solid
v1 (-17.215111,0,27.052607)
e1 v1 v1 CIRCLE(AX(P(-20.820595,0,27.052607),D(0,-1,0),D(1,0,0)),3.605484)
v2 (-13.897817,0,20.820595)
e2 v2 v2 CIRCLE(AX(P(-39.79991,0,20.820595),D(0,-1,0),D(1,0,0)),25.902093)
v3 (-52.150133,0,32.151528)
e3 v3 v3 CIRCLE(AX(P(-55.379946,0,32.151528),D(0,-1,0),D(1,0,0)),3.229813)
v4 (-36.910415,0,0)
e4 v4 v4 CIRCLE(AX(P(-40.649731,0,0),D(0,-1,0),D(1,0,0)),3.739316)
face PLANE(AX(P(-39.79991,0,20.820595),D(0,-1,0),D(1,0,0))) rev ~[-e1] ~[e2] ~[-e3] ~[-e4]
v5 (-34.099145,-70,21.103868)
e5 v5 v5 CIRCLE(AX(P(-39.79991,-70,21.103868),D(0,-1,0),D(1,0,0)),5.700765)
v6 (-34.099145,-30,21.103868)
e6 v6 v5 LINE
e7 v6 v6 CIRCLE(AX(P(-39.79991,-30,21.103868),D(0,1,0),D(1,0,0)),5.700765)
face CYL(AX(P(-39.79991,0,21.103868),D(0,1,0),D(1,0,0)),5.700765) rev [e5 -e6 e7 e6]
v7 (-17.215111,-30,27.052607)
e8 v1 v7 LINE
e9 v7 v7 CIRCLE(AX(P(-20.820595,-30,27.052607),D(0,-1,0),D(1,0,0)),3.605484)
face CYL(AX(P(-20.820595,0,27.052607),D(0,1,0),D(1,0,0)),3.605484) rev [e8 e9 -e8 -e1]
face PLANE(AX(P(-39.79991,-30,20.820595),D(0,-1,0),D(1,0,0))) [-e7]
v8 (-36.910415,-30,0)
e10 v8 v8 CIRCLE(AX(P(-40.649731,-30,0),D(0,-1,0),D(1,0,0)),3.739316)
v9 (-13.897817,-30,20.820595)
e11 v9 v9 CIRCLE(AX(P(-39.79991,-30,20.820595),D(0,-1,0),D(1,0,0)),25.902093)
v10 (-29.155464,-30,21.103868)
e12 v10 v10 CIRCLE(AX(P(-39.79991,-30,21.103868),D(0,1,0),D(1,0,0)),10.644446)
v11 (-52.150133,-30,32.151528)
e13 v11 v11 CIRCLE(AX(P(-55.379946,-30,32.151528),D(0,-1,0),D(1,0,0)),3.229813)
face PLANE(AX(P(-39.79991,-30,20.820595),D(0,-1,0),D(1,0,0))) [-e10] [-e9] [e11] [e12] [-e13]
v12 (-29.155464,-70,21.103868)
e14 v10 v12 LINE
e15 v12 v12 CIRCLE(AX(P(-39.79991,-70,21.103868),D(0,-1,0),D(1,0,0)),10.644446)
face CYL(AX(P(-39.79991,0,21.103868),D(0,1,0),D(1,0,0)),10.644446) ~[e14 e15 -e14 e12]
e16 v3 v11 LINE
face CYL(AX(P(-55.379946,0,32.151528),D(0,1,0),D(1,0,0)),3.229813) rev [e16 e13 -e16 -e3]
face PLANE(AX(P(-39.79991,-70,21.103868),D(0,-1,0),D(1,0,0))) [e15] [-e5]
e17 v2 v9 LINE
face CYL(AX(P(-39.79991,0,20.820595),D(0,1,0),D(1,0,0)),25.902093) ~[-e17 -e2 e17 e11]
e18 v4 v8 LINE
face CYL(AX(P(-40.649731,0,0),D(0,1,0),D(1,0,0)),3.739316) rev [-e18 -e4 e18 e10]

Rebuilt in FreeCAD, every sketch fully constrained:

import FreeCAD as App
import Part
import Sketcher
from FreeCAD import Vector
Q = App.Units.Quantity

doc = App.newDocument("Part")
body = doc.addObject("PartDesign::Body", "Body")

# Sketch on XZ plane
sketch1 = body.newObject("Sketcher::SketchObject", "Sketch")
sketch1.AttachmentSupport = (doc.getObject("XZ_Plane"), [""])
sketch1.MapMode = "FlatFace"
sketch1.addGeometry([
    Part.Circle(Vector(-40, 21, 0), Vector(0, 0, 1), 11),
    Part.Circle(Vector(-40, 21, 0), Vector(0, 0, 1), 6),
], False)
sketch1.addConstraint([
    Sketcher.Constraint("Coincident", 1, 3, 0, 3),
    Sketcher.Constraint("Diameter", 1, Q("11.40153 mm")),
    Sketcher.Constraint("Diameter", 0, Q("21.288892 mm")),
    Sketcher.Constraint("DistanceX", 0, 3, -1, 1, Q("39.79991 mm")),
    Sketcher.Constraint("DistanceY", -1, 1, 0, 3, Q("21.103868 mm")),
])
pad1 = body.newObject("PartDesign::Pad", "Pad")
pad1.Profile = sketch1
pad1.Length = 70

# Sketch on XZ plane
sketch2 = body.newObject("Sketcher::SketchObject", "Sketch001")
sketch2.AttachmentSupport = (doc.getObject("XZ_Plane"), [""])
sketch2.MapMode = "FlatFace"
sketch2.addGeometry([
    Part.Circle(Vector(-39.8, 20.8, 0), Vector(0, 0, 1), 25.9),
    Part.Circle(Vector(-40.6, 0, 0), Vector(0, 0, 1), 3.7),
    Part.Circle(Vector(-55.4, 32.2, 0), Vector(0, 0, 1), 3.2),
    Part.Circle(Vector(-20.8, 27.1, 0), Vector(0, 0, 1), 3.6),
], False)
sketch2.addConstraint([
    Sketcher.Constraint("PointOnObject", 1, 3, -1),
    Sketcher.Constraint("Diameter", 3, Q("7.210968 mm")),
    Sketcher.Constraint("Diameter", 0, Q("51.804186 mm")),
    Sketcher.Constraint("Diameter", 1, Q("7.478632 mm")),
    Sketcher.Constraint("Diameter", 2, Q("6.459626 mm")),
    Sketcher.Constraint("DistanceX", 0, 3, -1, 1, Q("39.79991 mm")),
    Sketcher.Constraint("DistanceX", 1, 3, -1, 1, Q("40.649731 mm")),
    Sketcher.Constraint("DistanceY", 0, 3, 3, 3, Q("6.232012 mm")),
    Sketcher.Constraint("DistanceX", 2, 3, 3, 3, Q("34.559351 mm")),
    Sketcher.Constraint("DistanceY", 3, 3, 2, 3, Q("5.098921 mm")),
    Sketcher.Constraint("DistanceY", -1, 1, 0, 3, Q("20.820595 mm")),
    Sketcher.Constraint("DistanceX", 2, 3, -1, 1, Q("55.379946 mm")),
])
pad2 = body.newObject("PartDesign::Pad", "Pad001")
pad2.Profile = sketch2
pad2.Length = 30

doc.recompute()
